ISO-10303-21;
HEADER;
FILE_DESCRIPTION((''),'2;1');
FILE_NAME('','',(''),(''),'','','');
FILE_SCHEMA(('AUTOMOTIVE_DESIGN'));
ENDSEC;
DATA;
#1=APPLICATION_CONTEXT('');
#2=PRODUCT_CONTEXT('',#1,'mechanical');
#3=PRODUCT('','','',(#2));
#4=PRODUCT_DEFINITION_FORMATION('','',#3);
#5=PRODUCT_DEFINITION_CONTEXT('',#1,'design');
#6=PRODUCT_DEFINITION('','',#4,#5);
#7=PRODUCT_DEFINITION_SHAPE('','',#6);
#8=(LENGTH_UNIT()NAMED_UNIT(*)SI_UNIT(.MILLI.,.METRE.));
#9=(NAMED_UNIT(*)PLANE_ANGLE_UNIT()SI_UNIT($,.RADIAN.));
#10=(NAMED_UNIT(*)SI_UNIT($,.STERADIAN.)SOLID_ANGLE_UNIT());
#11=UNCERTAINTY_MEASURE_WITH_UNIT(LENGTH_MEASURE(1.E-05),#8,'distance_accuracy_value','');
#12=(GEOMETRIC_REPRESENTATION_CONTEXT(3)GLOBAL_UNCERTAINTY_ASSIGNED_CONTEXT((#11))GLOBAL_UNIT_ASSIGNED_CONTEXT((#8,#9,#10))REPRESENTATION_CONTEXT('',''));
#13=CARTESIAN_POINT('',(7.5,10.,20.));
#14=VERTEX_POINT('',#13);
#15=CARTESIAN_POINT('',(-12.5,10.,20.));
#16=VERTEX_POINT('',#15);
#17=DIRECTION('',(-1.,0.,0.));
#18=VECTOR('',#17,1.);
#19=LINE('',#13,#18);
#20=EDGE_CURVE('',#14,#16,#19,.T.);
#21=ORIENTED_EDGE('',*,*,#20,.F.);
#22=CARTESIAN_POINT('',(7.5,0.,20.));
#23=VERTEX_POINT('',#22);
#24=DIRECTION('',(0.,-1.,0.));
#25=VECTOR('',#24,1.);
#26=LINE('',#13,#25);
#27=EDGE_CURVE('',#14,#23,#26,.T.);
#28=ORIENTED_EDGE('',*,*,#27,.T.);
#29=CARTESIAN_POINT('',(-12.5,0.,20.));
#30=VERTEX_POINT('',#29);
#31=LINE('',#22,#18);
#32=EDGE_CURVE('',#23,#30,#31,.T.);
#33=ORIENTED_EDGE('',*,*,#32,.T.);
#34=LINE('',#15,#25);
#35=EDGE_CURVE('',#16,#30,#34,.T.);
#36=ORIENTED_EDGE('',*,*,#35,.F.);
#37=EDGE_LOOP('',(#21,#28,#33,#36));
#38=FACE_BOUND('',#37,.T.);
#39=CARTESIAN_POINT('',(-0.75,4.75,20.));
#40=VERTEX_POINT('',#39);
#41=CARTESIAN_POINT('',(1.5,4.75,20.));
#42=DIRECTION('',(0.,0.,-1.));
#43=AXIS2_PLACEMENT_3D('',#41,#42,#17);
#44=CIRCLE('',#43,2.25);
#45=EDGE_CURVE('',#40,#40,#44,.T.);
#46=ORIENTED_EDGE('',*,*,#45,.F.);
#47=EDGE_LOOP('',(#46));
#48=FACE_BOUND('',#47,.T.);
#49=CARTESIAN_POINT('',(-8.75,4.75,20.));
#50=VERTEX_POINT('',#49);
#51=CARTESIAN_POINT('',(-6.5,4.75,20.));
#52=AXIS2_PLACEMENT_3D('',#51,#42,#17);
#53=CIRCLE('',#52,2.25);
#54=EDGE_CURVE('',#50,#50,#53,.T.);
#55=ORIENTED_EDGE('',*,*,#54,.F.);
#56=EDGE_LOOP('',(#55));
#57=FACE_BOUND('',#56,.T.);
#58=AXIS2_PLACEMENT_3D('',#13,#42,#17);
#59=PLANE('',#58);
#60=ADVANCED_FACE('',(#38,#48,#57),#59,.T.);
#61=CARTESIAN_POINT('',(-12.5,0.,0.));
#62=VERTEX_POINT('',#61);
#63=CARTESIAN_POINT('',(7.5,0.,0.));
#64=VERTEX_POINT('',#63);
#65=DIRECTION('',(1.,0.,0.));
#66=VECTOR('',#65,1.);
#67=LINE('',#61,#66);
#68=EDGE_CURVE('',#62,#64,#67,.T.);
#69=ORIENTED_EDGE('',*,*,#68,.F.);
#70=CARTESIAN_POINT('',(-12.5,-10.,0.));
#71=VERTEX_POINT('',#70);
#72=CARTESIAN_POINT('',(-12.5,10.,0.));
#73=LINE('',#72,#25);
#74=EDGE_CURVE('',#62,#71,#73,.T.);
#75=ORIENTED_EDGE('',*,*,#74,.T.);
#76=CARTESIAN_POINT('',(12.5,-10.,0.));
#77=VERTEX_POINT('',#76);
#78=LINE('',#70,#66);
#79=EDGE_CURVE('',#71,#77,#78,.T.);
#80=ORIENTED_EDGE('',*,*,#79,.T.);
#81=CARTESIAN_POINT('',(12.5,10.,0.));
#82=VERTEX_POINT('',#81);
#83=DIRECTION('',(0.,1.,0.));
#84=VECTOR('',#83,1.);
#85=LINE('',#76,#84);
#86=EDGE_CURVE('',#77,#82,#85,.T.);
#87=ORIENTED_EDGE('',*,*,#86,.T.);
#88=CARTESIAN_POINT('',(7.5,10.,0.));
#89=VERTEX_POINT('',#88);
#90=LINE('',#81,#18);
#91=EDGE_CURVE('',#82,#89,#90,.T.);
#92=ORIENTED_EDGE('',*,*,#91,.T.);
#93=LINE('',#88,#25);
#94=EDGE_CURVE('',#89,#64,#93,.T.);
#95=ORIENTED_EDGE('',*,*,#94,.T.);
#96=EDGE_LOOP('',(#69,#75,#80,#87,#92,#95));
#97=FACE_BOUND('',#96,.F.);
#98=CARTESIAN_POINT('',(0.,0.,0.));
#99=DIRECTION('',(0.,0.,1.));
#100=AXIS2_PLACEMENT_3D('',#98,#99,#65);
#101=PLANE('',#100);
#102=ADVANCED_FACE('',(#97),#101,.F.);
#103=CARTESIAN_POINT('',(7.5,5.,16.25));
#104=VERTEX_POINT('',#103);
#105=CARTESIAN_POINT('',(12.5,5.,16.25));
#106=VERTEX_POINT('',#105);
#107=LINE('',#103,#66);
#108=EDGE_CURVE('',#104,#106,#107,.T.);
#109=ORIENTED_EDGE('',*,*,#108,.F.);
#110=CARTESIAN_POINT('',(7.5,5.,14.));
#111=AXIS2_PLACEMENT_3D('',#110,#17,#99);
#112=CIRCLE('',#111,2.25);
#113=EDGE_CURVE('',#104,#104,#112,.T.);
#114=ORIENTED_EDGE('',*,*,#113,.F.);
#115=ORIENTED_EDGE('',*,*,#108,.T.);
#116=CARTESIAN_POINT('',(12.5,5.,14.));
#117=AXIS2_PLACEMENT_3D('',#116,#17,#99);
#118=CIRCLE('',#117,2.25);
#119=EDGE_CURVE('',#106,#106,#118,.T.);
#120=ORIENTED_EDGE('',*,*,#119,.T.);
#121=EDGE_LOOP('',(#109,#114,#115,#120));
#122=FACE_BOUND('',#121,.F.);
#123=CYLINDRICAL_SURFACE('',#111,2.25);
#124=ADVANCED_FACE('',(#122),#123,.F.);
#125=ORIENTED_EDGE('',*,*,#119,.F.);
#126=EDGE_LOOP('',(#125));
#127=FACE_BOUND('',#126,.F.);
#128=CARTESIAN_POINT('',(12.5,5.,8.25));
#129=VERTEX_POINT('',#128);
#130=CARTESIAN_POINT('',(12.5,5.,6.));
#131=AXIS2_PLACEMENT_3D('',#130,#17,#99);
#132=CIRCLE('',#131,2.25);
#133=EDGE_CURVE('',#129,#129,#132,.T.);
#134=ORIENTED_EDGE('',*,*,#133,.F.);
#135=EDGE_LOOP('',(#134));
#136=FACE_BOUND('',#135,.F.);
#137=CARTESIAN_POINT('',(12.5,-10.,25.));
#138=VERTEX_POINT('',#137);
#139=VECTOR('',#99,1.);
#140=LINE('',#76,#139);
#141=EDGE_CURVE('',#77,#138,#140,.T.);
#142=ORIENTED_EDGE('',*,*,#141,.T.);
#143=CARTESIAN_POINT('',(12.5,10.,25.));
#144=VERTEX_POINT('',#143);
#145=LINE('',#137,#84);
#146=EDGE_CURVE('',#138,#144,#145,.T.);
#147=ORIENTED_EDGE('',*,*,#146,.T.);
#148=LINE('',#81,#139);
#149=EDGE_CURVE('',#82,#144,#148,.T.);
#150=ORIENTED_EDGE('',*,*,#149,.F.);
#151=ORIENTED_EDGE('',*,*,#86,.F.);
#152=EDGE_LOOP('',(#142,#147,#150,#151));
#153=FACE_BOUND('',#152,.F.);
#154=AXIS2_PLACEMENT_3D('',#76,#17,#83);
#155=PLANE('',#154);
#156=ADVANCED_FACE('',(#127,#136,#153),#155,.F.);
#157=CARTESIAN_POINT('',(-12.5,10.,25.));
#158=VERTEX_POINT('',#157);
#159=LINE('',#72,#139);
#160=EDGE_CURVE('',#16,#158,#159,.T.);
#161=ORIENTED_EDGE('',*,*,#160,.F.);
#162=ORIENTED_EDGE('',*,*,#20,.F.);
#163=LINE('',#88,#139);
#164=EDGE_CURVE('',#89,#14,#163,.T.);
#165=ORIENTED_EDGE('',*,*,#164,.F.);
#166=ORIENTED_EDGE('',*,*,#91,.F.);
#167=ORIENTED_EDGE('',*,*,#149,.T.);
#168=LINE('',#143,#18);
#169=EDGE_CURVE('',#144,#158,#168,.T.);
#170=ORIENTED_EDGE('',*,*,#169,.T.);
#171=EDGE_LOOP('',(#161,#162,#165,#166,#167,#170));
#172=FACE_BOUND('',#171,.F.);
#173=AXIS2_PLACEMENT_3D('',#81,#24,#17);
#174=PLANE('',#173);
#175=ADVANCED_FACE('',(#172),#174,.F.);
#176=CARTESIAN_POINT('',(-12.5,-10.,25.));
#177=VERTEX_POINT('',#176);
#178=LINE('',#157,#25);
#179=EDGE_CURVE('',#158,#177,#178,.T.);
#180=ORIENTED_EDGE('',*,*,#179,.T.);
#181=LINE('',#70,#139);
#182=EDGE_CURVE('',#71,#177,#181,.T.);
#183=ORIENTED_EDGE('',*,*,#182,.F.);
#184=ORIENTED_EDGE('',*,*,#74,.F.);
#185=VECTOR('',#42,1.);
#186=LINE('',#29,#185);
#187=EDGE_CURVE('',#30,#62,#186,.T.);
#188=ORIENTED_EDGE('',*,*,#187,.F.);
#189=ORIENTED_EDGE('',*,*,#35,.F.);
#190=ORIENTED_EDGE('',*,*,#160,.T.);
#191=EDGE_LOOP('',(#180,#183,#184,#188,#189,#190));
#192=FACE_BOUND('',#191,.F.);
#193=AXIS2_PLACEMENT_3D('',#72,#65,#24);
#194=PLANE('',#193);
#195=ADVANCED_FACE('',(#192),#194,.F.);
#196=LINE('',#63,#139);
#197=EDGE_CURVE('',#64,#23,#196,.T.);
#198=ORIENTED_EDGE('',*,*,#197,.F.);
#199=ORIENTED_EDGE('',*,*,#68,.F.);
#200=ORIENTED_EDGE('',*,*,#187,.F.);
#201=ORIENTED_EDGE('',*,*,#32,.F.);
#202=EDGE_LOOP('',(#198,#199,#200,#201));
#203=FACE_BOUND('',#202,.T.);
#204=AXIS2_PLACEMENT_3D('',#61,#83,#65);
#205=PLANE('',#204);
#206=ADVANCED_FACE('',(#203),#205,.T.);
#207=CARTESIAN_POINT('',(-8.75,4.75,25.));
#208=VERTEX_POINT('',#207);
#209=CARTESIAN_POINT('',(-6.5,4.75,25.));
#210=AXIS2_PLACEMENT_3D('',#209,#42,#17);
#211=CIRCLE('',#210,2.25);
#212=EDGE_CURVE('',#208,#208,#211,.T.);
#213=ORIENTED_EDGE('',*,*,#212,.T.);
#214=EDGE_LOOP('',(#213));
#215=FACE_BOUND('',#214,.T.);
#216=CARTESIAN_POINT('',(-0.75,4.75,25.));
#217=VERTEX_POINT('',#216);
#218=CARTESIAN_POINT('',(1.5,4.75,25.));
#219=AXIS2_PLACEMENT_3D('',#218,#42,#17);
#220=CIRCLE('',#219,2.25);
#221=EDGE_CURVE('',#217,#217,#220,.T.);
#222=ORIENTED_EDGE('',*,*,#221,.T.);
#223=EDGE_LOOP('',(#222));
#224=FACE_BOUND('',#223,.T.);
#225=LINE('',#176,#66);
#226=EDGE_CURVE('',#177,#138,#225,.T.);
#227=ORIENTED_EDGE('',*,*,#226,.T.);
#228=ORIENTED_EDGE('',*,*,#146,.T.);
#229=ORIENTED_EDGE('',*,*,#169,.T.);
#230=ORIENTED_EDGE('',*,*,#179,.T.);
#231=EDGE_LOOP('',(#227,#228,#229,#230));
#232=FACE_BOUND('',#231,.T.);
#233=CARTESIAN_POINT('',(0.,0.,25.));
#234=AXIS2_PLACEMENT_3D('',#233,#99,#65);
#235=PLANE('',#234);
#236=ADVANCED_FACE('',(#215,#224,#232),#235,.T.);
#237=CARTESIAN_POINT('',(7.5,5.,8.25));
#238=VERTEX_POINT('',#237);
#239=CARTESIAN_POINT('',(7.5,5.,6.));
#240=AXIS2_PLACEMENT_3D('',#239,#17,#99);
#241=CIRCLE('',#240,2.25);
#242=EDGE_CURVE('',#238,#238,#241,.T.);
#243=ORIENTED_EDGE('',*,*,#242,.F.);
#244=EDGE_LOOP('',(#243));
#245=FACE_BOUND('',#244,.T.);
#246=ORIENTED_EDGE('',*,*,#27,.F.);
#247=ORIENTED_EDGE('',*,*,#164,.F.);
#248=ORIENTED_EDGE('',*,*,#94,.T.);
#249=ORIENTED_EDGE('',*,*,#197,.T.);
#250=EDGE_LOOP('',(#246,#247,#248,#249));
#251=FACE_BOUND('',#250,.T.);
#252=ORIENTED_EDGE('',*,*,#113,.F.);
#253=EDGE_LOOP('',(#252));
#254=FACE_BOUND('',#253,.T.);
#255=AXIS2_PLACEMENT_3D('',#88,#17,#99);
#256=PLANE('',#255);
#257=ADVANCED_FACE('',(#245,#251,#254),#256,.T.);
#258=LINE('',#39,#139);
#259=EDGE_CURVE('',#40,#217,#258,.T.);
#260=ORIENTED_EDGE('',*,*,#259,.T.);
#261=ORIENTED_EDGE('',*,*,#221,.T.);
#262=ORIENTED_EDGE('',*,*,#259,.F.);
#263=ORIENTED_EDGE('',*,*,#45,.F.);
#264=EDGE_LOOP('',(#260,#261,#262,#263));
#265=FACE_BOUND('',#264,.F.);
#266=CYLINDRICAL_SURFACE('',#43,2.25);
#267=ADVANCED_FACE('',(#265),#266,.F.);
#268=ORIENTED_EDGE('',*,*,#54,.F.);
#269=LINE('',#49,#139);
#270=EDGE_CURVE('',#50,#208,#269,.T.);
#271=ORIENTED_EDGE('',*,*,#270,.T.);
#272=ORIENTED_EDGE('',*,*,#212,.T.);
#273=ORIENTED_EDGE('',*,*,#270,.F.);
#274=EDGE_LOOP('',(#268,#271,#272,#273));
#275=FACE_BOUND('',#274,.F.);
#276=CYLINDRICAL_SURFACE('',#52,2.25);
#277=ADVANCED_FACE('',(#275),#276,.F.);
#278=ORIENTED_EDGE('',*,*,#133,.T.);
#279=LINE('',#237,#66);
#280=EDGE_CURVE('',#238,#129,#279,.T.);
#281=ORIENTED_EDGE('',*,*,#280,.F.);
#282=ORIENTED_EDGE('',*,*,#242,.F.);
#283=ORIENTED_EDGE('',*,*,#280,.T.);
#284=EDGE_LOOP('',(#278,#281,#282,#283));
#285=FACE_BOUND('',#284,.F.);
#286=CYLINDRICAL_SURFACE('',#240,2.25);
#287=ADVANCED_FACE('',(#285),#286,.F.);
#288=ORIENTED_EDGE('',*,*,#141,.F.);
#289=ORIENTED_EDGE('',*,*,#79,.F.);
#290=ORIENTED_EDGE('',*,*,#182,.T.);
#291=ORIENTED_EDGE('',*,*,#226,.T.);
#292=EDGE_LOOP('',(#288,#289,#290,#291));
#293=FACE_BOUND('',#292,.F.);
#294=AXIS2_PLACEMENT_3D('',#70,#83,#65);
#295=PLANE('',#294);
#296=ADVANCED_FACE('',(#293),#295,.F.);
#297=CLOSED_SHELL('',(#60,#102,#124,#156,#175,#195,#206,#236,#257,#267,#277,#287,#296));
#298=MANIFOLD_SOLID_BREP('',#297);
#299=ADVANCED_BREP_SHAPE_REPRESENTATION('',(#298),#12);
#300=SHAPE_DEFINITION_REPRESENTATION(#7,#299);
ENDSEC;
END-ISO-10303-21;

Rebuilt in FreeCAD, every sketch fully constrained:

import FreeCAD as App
import Part
import Sketcher
Q = App.Units.Quantity

doc = App.newDocument("Part")
body = doc.addObject("PartDesign::Body", "Body")

# Sketch on XY plane
sketch1 = doc.addObject("Sketcher::SketchObject", "Sketch")
body.addObject(sketch1)
sketch1.AttachmentSupport = (doc.XY_Plane, [""])
sketch1.MapMode = "FlatFace"
sketch1.addGeometry([
    Part.LineSegment(App.Vector(-12, 10, 0), App.Vector(-12, -10, 0)),
    Part.LineSegment(App.Vector(-12, -10, 0), App.Vector(12, -10, 0)),
    Part.LineSegment(App.Vector(12, -10, 0), App.Vector(12, 10, 0)),
    Part.LineSegment(App.Vector(12, 10, 0), App.Vector(-12, 10, 0)),
], False)
sketch1.addConstraint([
    Sketcher.Constraint("Coincident", 0, 2, 1, 1),
    Sketcher.Constraint("Coincident", 1, 2, 2, 1),
    Sketcher.Constraint("Coincident", 2, 2, 3, 1),
    Sketcher.Constraint("Coincident", 3, 2, 0, 1),
    Sketcher.Constraint("Vertical", 0),
    Sketcher.Constraint("Horizontal", 1),
    Sketcher.Constraint("Vertical", 2),
    Sketcher.Constraint("Horizontal", 3),
    Sketcher.Constraint("Symmetric", 0, 2, 2, 2, -1, 1),
    Sketcher.Constraint("DistanceX", 1, 1, 1, 2, Q("25 mm")),
    Sketcher.Constraint("DistanceY", 0, 2, 0, 1, Q("20 mm")),
])
pad1 = doc.addObject("PartDesign::Pad", "Pad")
body.addObject(pad1)
pad1.Profile = sketch1
pad1.Length = 25

# Sketch on XZ plane
sketch2 = doc.addObject("Sketcher::SketchObject", "Sketch001")
body.addObject(sketch2)
sketch2.AttachmentSupport = (doc.XZ_Plane, [""])
sketch2.MapMode = "FlatFace"
sketch2.AttachmentOffset = App.Placement(App.Vector(0, 0, -10), App.Rotation())
sketch2.addGeometry([
    Part.LineSegment(App.Vector(8, 0, 0), App.Vector(-12, 0, 0)),
    Part.LineSegment(App.Vector(-12, 0, 0), App.Vector(-12, 20, 0)),
    Part.LineSegment(App.Vector(-12, 20, 0), App.Vector(8, 20, 0)),
    Part.LineSegment(App.Vector(8, 20, 0), App.Vector(8, 0, 0)),
], False)
sketch2.addConstraint([
    Sketcher.Constraint("Coincident", 0, 2, 1, 1),
    Sketcher.Constraint("Coincident", 1, 2, 2, 1),
    Sketcher.Constraint("Coincident", 2, 2, 3, 1),
    Sketcher.Constraint("Coincident", 3, 2, 0, 1),
    Sketcher.Constraint("Horizontal", 0),
    Sketcher.Constraint("Vertical", 1),
    Sketcher.Constraint("Horizontal", 2),
    Sketcher.Constraint("Vertical", 3),
    Sketcher.Constraint("PointOnObject", 0, 2, -1),
    Sketcher.Constraint("Equal", 2, 1),
    Sketcher.Constraint("DistanceX", 0, 2, 0, 1, Q("20 mm")),
    Sketcher.Constraint("DistanceX", 0, 2, -1, 1, Q("12.5 mm")),
])
pocket1 = doc.addObject("PartDesign::Pocket", "Pocket")
body.addObject(pocket1)
pocket1.Profile = sketch2
pocket1.Length = 10
pocket1.Reversed = True

# Sketch on YZ plane
sketch3 = doc.addObject("Sketcher::SketchObject", "Sketch002")
body.addObject(sketch3)
sketch3.AttachmentSupport = (doc.YZ_Plane, [""])
sketch3.MapMode = "FlatFace"
sketch3.AttachmentOffset = App.Placement(App.Vector(0, 0, 7.5), App.Rotation())
sketch3.addGeometry([
    Part.Circle(App.Vector(5, 6, 0), App.Vector(0, 0, 1), 2.2),
    Part.Circle(App.Vector(5, 14, 0), App.Vector(0, 0, 1), 2.2),
], False)
sketch3.addConstraint([
    Sketcher.Constraint("Equal", 0, 1),
    Sketcher.Constraint("Vertical", 0, 3, 1, 3),
    Sketcher.Constraint("Diameter", 0, Q("4.5 mm")),
    Sketcher.Constraint("DistanceX", -1, 1, 0, 3, Q("5 mm")),
    Sketcher.Constraint("DistanceY", -1, 1, 0, 3, Q("6 mm")),
    Sketcher.Constraint("DistanceY", 0, 3, 1, 3, Q("8 mm")),
])
pocket2 = doc.addObject("PartDesign::Pocket", "Pocket001")
body.addObject(pocket2)
pocket2.Profile = sketch3
pocket2.Length = 5
pocket2.Reversed = True

# Sketch on XY plane
sketch4 = doc.addObject("Sketcher::SketchObject", "Sketch003")
body.addObject(sketch4)
sketch4.AttachmentSupport = (doc.XY_Plane, [""])
sketch4.MapMode = "FlatFace"
sketch4.AttachmentOffset = App.Placement(App.Vector(0, 0, 20), App.Rotation())
sketch4.addGeometry([
    Part.Circle(App.Vector(1.5, 4.8, 0), App.Vector(0, 0, 1), 2.2),
    Part.Circle(App.Vector(-6.5, 4.8, 0), App.Vector(0, 0, 1), 2.2),
], False)
sketch4.addConstraint([
    Sketcher.Constraint("Equal", 0, 1),
    Sketcher.Constraint("Horizontal", 0, 3, 1, 3),
    Sketcher.Constraint("Diameter", 0, Q("4.5 mm")),
    Sketcher.Constraint("DistanceX", 1, 3, 0, 3, Q("8 mm")),
    Sketcher.Constraint("DistanceX", -1, 1, 0, 3, Q("1.5 mm")),
    Sketcher.Constraint("DistanceY", -1, 1, 0, 3, Q("4.75 mm")),
])
pocket3 = doc.addObject("PartDesign::Pocket", "Pocket002")
body.addObject(pocket3)
pocket3.Profile = sketch4
pocket3.Length = 5
pocket3.Reversed = True

doc.recompute()
